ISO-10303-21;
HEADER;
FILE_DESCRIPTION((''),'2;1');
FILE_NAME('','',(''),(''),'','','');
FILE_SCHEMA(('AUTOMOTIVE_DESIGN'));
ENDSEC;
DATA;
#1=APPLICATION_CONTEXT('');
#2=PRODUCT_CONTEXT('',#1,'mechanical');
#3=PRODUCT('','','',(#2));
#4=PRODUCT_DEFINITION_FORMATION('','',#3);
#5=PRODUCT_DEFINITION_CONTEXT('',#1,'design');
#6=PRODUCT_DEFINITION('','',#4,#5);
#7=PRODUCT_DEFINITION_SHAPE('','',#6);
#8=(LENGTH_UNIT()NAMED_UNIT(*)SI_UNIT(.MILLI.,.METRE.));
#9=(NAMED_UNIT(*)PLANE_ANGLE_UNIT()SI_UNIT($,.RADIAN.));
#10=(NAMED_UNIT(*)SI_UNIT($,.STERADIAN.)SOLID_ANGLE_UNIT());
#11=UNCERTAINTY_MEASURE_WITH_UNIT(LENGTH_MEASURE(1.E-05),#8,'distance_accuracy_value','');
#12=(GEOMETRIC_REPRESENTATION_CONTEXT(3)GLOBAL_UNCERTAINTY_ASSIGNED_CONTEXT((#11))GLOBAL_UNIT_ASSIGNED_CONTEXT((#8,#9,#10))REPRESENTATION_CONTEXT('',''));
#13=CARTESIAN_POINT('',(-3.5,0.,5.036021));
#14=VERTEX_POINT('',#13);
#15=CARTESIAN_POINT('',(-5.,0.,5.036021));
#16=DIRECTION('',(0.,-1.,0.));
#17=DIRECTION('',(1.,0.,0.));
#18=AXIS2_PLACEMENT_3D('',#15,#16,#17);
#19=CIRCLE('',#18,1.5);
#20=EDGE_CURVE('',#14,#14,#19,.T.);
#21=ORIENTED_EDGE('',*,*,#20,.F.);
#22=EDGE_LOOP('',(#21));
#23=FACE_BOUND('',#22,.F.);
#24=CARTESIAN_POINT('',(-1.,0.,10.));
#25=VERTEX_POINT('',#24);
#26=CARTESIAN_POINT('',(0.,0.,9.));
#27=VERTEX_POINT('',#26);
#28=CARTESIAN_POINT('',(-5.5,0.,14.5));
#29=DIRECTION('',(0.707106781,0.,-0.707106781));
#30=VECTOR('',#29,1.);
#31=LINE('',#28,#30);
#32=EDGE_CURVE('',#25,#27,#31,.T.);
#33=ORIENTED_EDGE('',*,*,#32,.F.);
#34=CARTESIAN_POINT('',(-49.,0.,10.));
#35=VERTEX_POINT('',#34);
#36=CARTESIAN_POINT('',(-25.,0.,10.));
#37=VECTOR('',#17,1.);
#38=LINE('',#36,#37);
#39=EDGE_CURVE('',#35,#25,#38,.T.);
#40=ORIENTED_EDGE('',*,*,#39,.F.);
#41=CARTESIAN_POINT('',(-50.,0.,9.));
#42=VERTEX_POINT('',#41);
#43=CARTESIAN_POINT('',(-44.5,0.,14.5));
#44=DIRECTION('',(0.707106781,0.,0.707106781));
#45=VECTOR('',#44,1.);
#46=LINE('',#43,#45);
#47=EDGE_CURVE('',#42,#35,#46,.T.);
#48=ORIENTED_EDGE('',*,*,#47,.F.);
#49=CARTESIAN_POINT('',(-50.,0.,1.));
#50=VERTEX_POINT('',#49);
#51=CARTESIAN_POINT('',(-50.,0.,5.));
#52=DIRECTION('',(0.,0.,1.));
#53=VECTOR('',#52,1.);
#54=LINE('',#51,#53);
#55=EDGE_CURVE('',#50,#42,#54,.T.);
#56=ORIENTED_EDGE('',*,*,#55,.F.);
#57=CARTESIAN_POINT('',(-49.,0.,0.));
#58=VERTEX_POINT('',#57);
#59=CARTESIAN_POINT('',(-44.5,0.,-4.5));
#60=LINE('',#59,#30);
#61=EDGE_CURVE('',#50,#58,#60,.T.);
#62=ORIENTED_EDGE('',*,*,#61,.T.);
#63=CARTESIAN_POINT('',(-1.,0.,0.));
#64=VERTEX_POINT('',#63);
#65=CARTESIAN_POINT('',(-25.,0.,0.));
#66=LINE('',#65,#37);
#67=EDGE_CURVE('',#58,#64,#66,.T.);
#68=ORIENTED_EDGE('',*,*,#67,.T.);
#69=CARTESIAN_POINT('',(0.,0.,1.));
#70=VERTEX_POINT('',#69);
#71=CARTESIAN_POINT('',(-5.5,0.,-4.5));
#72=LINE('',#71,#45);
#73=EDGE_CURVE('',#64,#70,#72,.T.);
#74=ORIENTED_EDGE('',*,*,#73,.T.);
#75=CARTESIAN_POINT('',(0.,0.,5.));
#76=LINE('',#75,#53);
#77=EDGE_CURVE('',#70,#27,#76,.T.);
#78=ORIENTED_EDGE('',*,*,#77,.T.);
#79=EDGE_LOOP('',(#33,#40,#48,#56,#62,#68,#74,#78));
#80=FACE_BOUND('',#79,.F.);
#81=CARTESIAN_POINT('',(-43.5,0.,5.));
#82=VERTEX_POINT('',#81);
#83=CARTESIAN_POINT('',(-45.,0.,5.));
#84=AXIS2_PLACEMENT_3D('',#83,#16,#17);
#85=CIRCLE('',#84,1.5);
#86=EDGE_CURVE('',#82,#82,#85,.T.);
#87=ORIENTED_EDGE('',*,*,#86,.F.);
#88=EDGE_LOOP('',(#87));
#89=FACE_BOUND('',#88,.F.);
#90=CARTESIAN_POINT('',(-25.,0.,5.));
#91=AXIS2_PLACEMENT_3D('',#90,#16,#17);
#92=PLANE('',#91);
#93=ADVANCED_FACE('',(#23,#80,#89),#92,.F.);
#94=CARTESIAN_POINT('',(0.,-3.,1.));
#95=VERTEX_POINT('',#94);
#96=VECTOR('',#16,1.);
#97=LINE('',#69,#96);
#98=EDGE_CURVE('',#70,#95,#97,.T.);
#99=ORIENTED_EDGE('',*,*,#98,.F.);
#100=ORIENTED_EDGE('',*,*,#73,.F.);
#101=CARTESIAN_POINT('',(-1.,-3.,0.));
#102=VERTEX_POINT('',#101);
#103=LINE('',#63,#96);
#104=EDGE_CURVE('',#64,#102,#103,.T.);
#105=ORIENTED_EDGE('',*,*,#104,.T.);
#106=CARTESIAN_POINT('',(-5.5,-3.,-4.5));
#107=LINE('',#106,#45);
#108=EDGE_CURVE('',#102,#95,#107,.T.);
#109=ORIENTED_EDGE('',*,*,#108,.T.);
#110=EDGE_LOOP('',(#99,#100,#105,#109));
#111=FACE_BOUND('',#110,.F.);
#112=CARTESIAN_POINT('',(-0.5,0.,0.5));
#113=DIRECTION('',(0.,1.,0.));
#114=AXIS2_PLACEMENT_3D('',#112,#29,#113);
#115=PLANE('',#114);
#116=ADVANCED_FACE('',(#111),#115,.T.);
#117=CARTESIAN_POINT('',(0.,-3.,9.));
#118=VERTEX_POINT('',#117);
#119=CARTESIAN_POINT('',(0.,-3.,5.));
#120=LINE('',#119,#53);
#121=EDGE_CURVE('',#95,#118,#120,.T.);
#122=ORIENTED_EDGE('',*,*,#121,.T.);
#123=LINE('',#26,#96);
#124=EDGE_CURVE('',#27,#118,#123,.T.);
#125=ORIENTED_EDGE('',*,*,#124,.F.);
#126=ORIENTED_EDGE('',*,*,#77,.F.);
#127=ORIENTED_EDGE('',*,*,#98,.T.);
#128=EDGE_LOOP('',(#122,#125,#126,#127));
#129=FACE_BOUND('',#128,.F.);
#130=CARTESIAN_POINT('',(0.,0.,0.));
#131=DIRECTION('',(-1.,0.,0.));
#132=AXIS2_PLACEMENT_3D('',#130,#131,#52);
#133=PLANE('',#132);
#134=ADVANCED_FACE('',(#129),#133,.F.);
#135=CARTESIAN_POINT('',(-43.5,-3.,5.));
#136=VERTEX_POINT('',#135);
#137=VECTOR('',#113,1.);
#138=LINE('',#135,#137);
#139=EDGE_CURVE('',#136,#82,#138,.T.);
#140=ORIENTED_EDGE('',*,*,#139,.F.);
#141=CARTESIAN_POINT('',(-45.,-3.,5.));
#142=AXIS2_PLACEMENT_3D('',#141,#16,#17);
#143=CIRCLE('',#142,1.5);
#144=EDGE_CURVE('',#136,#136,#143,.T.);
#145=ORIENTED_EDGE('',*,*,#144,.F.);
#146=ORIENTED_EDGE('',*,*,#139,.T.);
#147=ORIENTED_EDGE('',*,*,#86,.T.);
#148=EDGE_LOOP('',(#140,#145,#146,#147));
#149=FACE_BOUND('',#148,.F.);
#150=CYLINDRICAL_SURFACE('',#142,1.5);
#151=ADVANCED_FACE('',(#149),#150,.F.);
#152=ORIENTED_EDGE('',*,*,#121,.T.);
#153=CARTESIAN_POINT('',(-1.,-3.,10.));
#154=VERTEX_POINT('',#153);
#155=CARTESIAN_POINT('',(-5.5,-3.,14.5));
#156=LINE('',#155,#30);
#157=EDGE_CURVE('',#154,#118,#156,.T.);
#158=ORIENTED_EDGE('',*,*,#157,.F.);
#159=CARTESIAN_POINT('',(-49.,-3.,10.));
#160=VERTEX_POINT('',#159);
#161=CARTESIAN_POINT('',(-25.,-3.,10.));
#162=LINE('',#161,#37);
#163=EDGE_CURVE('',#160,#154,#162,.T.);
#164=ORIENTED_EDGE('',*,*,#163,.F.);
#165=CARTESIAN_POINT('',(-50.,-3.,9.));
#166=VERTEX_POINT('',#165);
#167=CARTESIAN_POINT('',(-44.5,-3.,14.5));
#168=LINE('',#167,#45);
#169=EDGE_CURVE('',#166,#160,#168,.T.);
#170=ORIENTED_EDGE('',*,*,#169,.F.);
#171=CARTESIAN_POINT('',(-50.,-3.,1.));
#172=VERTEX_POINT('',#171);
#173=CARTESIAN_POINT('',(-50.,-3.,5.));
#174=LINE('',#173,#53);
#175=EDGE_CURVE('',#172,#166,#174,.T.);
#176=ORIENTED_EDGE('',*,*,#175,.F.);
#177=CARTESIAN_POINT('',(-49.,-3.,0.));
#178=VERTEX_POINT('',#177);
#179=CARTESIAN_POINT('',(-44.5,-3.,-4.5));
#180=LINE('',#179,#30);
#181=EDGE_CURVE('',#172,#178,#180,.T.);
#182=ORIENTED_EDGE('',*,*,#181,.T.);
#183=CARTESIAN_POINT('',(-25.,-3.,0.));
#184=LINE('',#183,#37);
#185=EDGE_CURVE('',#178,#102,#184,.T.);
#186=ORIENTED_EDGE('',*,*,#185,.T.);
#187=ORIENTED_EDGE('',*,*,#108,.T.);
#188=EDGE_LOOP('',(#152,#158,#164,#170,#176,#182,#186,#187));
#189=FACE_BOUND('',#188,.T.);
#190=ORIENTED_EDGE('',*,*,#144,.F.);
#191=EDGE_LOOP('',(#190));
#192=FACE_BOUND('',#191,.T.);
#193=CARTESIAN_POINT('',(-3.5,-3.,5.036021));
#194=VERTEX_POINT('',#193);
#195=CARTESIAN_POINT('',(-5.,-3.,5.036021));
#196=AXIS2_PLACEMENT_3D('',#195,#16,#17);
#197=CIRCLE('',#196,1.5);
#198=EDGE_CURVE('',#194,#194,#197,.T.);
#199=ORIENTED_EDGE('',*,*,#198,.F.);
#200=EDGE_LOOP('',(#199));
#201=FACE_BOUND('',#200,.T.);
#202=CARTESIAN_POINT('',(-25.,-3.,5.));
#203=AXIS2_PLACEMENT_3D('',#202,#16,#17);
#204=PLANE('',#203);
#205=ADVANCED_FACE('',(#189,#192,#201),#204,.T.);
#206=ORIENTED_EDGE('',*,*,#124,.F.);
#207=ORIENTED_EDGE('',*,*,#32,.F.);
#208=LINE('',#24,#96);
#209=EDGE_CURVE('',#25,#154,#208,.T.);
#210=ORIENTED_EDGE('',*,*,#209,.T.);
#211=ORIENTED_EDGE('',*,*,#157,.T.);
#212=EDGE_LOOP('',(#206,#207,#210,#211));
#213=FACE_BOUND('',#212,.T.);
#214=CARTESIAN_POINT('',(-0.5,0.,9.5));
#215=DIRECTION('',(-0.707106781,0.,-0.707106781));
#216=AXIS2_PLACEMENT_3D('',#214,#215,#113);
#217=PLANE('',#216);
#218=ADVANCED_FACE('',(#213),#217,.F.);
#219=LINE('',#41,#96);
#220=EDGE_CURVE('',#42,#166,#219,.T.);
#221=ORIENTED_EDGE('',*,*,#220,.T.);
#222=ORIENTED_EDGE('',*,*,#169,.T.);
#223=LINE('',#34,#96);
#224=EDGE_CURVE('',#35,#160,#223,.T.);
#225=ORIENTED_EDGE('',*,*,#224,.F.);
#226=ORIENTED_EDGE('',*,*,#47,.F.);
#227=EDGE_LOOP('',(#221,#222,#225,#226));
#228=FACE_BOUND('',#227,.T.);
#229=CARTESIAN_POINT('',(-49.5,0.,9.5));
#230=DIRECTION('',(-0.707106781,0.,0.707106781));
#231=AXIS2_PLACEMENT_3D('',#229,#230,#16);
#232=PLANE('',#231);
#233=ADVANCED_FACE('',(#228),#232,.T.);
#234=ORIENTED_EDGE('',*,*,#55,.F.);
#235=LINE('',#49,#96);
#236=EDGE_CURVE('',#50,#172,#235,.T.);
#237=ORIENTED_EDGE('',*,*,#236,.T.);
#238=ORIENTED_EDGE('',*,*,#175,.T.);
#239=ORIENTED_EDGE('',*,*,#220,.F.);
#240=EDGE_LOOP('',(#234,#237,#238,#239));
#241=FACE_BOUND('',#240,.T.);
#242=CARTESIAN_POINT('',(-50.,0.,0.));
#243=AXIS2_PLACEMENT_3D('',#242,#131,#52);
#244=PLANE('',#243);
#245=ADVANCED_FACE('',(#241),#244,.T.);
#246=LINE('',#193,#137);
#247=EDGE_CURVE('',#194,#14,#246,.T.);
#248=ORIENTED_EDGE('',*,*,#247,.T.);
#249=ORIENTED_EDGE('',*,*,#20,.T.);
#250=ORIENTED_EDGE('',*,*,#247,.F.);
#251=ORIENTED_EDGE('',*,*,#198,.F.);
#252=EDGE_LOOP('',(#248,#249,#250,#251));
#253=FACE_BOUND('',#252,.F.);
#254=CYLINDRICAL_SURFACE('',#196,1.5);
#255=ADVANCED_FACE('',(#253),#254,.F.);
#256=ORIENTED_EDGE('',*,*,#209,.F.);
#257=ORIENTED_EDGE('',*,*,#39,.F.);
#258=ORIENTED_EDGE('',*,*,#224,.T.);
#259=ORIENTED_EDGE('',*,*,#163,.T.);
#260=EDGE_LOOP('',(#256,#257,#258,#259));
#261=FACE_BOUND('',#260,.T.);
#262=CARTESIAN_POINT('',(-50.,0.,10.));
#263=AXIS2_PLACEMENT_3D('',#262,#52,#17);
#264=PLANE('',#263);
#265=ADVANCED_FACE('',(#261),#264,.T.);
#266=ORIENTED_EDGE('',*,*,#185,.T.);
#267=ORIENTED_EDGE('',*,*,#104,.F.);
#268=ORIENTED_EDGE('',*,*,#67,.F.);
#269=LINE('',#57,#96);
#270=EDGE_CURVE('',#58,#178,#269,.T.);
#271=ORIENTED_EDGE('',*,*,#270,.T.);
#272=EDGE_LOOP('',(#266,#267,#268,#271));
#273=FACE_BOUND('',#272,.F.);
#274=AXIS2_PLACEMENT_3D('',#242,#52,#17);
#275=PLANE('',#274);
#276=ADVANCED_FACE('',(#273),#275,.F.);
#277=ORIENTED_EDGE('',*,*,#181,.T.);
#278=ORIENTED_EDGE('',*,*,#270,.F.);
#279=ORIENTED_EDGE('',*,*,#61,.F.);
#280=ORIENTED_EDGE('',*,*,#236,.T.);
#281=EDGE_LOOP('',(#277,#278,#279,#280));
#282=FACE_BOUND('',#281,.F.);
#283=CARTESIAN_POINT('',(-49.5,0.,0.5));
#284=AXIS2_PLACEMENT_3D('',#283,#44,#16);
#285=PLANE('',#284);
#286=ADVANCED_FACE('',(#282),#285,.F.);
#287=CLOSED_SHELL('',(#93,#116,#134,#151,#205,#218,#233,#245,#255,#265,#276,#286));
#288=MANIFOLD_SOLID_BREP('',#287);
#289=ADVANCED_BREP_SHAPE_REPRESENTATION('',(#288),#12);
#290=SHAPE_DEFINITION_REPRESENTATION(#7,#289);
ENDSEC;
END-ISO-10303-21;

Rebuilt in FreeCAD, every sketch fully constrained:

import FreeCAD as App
import Part
import Sketcher

V = App.Vector
Q = App.Units.Quantity


def edges_at(feature, points):
    """Names of the edges that pass closest to the given points."""
    edges = feature.Shape.Edges
    near = lambda p: min(range(len(edges)), key=lambda i: edges[i].distToShape(Part.Vertex(*p))[0])
    return sorted({f"Edge{near(p) + 1}" for p in points})


def add_polygon(sketch, points):
    """Adds a closed chain of lines whose ends are joined by coincident constraints."""
    first, n = sketch.GeometryCount, len(points)
    for a, b in zip(points, points[1:] + points[:1]):
        sketch.addGeometry(Part.LineSegment(App.Vector(*a, 0), App.Vector(*b, 0)), False)
    for i in range(n):
        sketch.addConstraint(Sketcher.Constraint("Coincident", first + i, 2, first + (i + 1) % n, 1))

doc = App.newDocument("Part")
body = doc.addObject("PartDesign::Body", "Body")

# Sketch on XZ plane
sketch1 = body.newObject("Sketcher::SketchObject", "Sketch")
sketch1.AttachmentSupport = (doc.getObject("XZ_Plane"), [""])
sketch1.MapMode = "FlatFace"
add_polygon(sketch1, [(-50, 10), (-50, 0), (0, 0), (0, 10)])  # lines 0-3
sketch1.addConstraint([
    Sketcher.Constraint("Vertical", 0),
    Sketcher.Constraint("Horizontal", 1),
    Sketcher.Constraint("Vertical", 2),
    Sketcher.Constraint("Horizontal", 3),
    Sketcher.Constraint("Coincident", 1, 2, -1, 1),
    Sketcher.Constraint("DistanceX", 1, 1, 1, 2, Q("50 mm")),
    Sketcher.Constraint("DistanceY", 0, 2, 0, 1, Q("10 mm")),
])
pad1 = body.newObject("PartDesign::Pad", "Pad")
pad1.Profile = sketch1
pad1.Length = 3

# Sketch on XZ plane
sketch2 = body.newObject("Sketcher::SketchObject", "Sketch001")
sketch2.AttachmentSupport = (doc.getObject("XZ_Plane"), [""])
sketch2.MapMode = "FlatFace"
sketch2.AttachmentOffset = App.Placement(V(0, 0, 3), App.Rotation())
sketch2.addGeometry([
    Part.Circle(V(-45, 5, 0), V(0, 0, 1), 1.5),
    Part.Circle(V(-5, 5.036021, 0), V(0, 0, 1), 1.5),
], False)
sketch2.addConstraint([
    Sketcher.Constraint("Equal", 0, 1),
    Sketcher.Constraint("Diameter", 0, Q("3 mm")),
    Sketcher.Constraint("DistanceX", 0, 3, -1, 1, Q("45 mm")),
    Sketcher.Constraint("DistanceY", -1, 1, 0, 3, Q("5 mm")),
    Sketcher.Constraint("DistanceX", 1, 3, -1, 1, Q("5 mm")),
    Sketcher.Constraint("DistanceY", -1, 1, 1, 3, Q("5.036021 mm")),
])
pocket1 = body.newObject("PartDesign::Pocket", "Pocket")
pocket1.Profile = sketch2
pocket1.Length = 5
doc.recompute()

chamfer = body.newObject("PartDesign::Chamfer", "Chamfer")
chamfer.Base = (pocket1, edges_at(pocket1, [
    (0, -1.5, 10),
    (0, -1.5, 0),
    (-50, -1.5, 10),
    (-50, -1.5, 0),
]))
chamfer.Size = 1

doc.recompute()
